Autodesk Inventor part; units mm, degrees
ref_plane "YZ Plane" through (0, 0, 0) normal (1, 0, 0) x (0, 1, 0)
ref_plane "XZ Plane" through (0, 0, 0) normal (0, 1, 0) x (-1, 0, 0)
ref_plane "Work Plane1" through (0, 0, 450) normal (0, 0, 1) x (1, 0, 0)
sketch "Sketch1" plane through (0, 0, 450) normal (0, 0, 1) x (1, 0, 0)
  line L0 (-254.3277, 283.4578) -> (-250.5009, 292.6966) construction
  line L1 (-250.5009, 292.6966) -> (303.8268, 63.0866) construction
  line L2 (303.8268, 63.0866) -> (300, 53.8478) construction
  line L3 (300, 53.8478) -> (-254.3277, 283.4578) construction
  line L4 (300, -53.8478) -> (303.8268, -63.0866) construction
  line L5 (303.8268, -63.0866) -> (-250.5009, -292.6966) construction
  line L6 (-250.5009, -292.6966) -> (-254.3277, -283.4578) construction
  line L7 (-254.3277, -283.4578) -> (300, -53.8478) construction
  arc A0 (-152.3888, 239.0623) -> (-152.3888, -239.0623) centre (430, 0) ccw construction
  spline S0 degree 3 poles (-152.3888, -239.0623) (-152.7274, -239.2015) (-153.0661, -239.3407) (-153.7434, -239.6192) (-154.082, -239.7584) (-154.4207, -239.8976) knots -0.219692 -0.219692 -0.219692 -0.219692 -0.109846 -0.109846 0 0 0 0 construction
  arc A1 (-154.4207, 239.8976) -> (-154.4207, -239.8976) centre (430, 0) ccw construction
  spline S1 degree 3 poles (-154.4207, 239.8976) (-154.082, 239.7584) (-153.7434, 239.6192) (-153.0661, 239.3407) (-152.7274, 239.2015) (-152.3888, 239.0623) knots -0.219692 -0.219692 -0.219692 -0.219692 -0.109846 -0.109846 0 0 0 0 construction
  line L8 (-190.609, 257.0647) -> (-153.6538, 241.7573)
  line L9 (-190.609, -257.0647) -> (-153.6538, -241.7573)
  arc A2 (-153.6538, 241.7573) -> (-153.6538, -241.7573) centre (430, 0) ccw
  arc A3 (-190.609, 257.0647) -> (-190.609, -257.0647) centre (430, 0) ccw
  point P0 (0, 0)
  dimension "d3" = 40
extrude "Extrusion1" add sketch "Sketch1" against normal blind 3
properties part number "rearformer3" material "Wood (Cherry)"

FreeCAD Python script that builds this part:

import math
import FreeCAD as App
import Part
import Sketcher
from FreeCAD import Vector
Q = App.Units.Quantity

doc = App.newDocument("Part")
body = doc.addObject("PartDesign::Body", "Body")

# Sketch on XY plane
sketch1 = doc.addObject("Sketcher::SketchObject", "Sketch")
body.addObject(sketch1)
sketch1.AttachmentSupport = (doc.XY_Plane, [""])
sketch1.MapMode = "FlatFace"
sketch1.AttachmentOffset = App.Placement(Vector(0, 0, 450), App.Rotation())
sketch1.addGeometry(Part.LineSegment(Vector(-153.6538, 241.7573, 0), Vector(-190.609, 257.0647, 0)), False)
sketch1.addGeometry(Part.ArcOfCircle(Part.Circle(Vector(430, 0, 0), Vector(0, 0, 1), 671.742355), math.radians(157.499997), math.radians(202.500003)), False)
sketch1.addGeometry(Part.LineSegment(Vector(-190.609, -257.0647, 0), Vector(-153.6538, -241.7573, 0)), False)
sketch1.addGeometry(Part.ArcOfCircle(Part.Circle(Vector(430, 0, 0), Vector(0, 0, 1), 631.742313), math.radians(157.500002), math.radians(202.499998)), False)
sketch1.addConstraint(Sketcher.Constraint("Coincident", 0, 2, 1, 1))
sketch1.addConstraint(Sketcher.Constraint("Coincident", 1, 2, 2, 1))
sketch1.addConstraint(Sketcher.Constraint("Coincident", 2, 2, 3, 2))
sketch1.addConstraint(Sketcher.Constraint("Coincident", 3, 1, 0, 1))
sketch1.addConstraint(Sketcher.Constraint("Coincident", 3, 3, 1, 3))
sketch1.addConstraint(Sketcher.Constraint("PointOnObject", 1, 3, -1))
sketch1.addConstraint(Sketcher.Constraint("Vertical", 0, 2, 1, 2))
sketch1.addConstraint(Sketcher.Constraint("Vertical", 2, 2, 3, 1))
sketch1.addConstraint(Sketcher.Constraint("Distance", 0, Q("40 mm")))
sketch1.addConstraint(Sketcher.Constraint("DistanceX", -1, 1, 1, 3, Q("430 mm")))
sketch1.addConstraint(Sketcher.Constraint("Angle", 0, Q("157.5 deg")))
sketch1.addConstraint(Sketcher.Constraint("Radius", 1, Q("671.7424 mm")))
sketch1.addConstraint(Sketcher.Constraint("DistanceX", 0, 2, -1, 1, Q("190.609 mm")))
pad1 = doc.addObject("PartDesign::Pad", "Pad")
body.addObject(pad1)
pad1.Profile = sketch1
pad1.Length = 3
pad1.Reversed = True

doc.recompute()
